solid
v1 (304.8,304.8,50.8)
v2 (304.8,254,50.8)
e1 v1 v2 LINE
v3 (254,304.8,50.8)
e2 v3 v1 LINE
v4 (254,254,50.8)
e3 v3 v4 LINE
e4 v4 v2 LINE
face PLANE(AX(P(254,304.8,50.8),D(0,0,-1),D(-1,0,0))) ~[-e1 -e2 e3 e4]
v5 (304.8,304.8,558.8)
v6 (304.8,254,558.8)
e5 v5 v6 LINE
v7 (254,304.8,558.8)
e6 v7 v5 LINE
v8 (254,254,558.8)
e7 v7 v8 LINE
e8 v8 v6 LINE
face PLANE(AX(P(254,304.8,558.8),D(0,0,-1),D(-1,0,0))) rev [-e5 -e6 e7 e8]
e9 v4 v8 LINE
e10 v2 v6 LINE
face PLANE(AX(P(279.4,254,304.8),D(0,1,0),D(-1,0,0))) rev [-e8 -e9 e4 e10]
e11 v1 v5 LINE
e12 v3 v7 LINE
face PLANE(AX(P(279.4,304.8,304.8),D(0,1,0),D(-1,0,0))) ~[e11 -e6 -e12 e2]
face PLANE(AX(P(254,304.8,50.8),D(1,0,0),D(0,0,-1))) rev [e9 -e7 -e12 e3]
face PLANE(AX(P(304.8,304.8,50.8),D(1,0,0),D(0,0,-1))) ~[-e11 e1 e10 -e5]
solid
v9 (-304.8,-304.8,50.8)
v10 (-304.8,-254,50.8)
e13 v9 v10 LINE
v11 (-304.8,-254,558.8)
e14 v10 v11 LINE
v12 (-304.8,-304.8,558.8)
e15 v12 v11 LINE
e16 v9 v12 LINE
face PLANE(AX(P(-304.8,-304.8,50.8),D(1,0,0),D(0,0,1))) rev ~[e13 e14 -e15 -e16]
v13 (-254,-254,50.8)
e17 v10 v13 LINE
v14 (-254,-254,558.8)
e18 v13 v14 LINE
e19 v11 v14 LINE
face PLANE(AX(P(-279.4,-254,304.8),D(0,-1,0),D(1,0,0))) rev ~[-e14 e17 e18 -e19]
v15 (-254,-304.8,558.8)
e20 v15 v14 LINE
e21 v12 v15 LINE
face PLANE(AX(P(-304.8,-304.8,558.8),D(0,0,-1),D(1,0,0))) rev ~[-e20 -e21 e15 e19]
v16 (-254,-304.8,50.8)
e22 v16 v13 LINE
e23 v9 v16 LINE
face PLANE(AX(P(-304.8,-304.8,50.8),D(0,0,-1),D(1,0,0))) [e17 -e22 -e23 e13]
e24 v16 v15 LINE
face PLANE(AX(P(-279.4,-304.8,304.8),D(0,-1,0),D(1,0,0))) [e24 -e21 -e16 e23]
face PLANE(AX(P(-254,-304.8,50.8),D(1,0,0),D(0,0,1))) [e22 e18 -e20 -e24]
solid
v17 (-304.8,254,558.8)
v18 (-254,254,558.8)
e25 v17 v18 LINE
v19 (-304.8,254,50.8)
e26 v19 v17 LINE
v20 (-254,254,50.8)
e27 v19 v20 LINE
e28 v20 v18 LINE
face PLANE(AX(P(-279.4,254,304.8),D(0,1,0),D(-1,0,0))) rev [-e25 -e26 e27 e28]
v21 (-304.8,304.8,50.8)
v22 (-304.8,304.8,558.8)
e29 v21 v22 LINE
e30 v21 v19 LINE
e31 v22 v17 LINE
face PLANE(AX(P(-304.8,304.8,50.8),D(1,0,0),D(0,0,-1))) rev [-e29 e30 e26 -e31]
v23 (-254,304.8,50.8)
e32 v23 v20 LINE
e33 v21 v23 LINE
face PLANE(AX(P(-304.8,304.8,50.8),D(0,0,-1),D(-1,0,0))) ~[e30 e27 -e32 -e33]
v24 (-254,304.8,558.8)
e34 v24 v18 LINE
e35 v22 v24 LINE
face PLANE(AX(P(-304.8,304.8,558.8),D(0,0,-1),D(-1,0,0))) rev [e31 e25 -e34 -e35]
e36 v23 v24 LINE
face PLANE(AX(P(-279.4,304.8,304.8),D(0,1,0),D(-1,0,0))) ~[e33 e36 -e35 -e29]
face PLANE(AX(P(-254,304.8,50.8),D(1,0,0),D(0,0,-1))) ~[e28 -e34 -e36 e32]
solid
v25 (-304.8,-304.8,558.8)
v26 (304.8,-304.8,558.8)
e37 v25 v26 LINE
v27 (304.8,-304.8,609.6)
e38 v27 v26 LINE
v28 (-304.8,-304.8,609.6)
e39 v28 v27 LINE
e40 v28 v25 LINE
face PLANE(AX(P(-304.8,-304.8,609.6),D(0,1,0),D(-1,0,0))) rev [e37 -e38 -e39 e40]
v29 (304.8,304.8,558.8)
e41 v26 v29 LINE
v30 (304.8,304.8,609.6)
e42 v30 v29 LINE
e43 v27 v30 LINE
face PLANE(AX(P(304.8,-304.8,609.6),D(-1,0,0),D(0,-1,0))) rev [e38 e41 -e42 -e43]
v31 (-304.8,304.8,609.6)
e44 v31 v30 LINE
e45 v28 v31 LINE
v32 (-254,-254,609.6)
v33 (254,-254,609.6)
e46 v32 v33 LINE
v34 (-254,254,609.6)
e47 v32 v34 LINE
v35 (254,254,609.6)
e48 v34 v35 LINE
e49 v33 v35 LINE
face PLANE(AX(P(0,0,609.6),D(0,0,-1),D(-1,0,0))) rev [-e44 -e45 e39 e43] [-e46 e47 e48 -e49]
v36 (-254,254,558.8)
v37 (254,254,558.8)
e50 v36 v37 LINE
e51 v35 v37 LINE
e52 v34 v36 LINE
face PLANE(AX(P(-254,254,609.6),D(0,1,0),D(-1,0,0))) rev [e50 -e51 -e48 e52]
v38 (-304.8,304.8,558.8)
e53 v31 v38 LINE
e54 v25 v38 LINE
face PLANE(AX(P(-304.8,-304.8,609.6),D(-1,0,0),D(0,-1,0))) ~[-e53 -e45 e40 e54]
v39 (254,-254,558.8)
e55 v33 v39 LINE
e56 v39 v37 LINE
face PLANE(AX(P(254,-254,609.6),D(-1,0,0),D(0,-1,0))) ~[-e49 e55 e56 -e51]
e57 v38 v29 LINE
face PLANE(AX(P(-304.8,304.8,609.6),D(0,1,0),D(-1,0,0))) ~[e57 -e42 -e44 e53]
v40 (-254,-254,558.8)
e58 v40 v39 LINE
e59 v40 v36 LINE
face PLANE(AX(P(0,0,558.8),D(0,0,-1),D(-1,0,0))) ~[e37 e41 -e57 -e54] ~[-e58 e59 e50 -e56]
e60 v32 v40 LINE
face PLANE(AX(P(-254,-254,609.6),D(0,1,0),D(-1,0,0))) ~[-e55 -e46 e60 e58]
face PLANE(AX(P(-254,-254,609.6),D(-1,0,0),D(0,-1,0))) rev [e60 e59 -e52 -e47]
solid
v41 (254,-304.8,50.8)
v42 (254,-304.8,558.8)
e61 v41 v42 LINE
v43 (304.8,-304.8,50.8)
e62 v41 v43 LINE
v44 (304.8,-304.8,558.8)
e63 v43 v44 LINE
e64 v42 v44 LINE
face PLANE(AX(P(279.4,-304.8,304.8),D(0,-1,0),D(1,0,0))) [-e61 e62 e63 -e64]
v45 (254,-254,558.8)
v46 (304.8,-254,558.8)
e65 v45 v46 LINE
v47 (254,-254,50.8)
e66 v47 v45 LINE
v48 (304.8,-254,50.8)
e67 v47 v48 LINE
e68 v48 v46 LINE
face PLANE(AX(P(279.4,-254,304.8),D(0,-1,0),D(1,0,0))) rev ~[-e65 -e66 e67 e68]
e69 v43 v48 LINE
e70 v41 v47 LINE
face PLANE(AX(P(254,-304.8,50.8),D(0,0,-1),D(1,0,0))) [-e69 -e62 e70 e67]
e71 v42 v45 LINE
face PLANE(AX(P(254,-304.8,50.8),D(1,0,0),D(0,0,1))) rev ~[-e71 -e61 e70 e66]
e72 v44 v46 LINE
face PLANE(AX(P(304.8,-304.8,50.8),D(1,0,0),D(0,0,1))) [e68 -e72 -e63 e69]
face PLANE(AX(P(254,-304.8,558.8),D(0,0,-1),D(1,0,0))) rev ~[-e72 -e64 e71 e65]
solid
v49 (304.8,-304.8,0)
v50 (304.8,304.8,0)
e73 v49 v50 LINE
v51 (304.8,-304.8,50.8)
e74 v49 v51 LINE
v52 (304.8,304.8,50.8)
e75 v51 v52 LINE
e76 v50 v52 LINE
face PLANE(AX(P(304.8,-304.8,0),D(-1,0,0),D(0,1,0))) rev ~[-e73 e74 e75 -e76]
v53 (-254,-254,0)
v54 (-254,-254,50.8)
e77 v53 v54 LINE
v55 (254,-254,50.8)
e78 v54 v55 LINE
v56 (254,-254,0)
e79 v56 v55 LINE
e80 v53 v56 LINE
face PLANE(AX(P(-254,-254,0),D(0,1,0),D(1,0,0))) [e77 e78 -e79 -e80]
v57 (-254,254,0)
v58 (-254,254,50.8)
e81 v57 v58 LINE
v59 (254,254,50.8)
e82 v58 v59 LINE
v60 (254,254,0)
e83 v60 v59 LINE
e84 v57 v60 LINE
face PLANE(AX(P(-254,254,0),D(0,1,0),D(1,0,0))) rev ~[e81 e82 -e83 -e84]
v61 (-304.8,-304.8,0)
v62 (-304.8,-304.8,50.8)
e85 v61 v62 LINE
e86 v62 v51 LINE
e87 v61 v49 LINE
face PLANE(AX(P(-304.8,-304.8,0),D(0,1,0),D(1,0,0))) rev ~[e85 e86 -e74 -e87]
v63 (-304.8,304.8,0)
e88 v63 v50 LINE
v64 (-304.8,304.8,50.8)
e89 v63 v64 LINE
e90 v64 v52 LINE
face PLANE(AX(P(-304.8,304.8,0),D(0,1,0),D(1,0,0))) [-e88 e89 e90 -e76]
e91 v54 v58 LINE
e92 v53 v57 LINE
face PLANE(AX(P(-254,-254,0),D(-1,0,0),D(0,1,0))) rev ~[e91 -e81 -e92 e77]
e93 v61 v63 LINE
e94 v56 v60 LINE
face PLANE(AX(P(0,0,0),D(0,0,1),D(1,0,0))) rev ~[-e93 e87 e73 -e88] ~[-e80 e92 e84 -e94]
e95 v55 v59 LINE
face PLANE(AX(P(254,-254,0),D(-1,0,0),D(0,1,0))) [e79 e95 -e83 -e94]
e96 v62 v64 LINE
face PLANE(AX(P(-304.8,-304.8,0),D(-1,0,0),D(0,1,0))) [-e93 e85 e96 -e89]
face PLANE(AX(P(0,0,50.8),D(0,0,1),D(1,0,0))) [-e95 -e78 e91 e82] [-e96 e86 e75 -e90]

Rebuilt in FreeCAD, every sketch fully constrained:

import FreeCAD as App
import Part
import Sketcher
Q = App.Units.Quantity

doc = App.newDocument("Part")
params = doc.addObject("Spreadsheet::Sheet", "Params")
for row, (alias, value) in enumerate([
    ("sketch1_width", "24 in"),
    ("sketch1_width2", "20 in"),
    ("pad1_length", "2 in"),
    ("sketch2_width", "2 in"),
    ("sketch2_height", "20 in"),
    ("pad2_length", "2 in"),
    ("sketch3_width", "2 in"),
    ("sketch3_height", "20 in"),
    ("pad3_length", "2 in"),
], start=1):
    params.set(f"A{row}", alias)
    params.set(f"B{row}", "=" + value)
    params.setAlias(f"B{row}", alias)

body = doc.addObject("PartDesign::Body", "Body")

# Sketch on XY plane
sketch1 = body.newObject("Sketcher::SketchObject", "Sketch")
sketch1.AttachmentSupport = (doc.getObject("XY_Plane"), [""])
sketch1.MapMode = "FlatFace"
sketch1.addGeometry([
    Part.LineSegment(App.Vector(-305, 305, 0), App.Vector(-305, -305, 0)),  # 0
    Part.LineSegment(App.Vector(-305, -305, 0), App.Vector(305, -305, 0)),  # 1
    Part.LineSegment(App.Vector(305, -305, 0), App.Vector(305, 305, 0)),  # 2
    Part.LineSegment(App.Vector(305, 305, 0), App.Vector(-305, 305, 0)),  # 3
    Part.LineSegment(App.Vector(254, -254, 0), App.Vector(-254, -254, 0)),  # 4
    Part.LineSegment(App.Vector(-254, -254, 0), App.Vector(-254, 254, 0)),  # 5
    Part.LineSegment(App.Vector(-254, 254, 0), App.Vector(254, 254, 0)),  # 6
    Part.LineSegment(App.Vector(254, 254, 0), App.Vector(254, -254, 0)),  # 7
], False)
sketch1.addConstraint([
    Sketcher.Constraint("Coincident", 0, 2, 1, 1),
    Sketcher.Constraint("Coincident", 1, 2, 2, 1),
    Sketcher.Constraint("Coincident", 2, 2, 3, 1),
    Sketcher.Constraint("Coincident", 3, 2, 0, 1),
    Sketcher.Constraint("Coincident", 4, 2, 5, 1),
    Sketcher.Constraint("Coincident", 5, 2, 6, 1),
    Sketcher.Constraint("Coincident", 6, 2, 7, 1),
    Sketcher.Constraint("Coincident", 7, 2, 4, 1),
    Sketcher.Constraint("Vertical", 0),
    Sketcher.Constraint("Horizontal", 1),
    Sketcher.Constraint("Vertical", 2),
    Sketcher.Constraint("Horizontal", 3),
    Sketcher.Constraint("Horizontal", 4),
    Sketcher.Constraint("Vertical", 5),
    Sketcher.Constraint("Horizontal", 6),
    Sketcher.Constraint("Vertical", 7),
    Sketcher.Constraint("Symmetric", 0, 2, 2, 2, -1, 1),
    Sketcher.Constraint("Symmetric", 4, 2, 6, 2, -1, 1),
    Sketcher.Constraint("Equal", 3, 0),
    Sketcher.Constraint("Equal", 6, 5),
    Sketcher.Constraint("DistanceX", 1, 1, 1, 2, Q("24 in")),
    Sketcher.Constraint("DistanceX", 4, 2, 4, 1, Q("20 in")),
])
sketch1.setExpression("Constraints[20]", "Params.sketch1_width")
sketch1.setExpression("Constraints[21]", "Params.sketch1_width2")
pad1 = body.newObject("PartDesign::Pad", "Pad")
pad1.Profile = sketch1
pad1.setExpression("Length", "Params.pad1_length")
body2 = doc.addObject("PartDesign::Body", "Body001")
doc.recompute()

mirroring = doc.addObject("Part::Mirroring", "Mirroring")
mirroring.Source = body
mirroring.Base = App.Vector(0, 0, 304.8)
mirroring.Normal = App.Vector(0, 0, 1)
body2.BaseFeature = mirroring
doc.recompute()
body3 = doc.addObject("PartDesign::Body", "Body002")

# Sketch on XZ plane
sketch2 = body3.newObject("Sketcher::SketchObject", "Sketch001")
sketch2.AttachmentSupport = (doc.getObject("XZ_Plane002"), [""])
sketch2.MapMode = "FlatFace"
sketch2.AttachmentOffset = App.Placement(App.Vector(0, 0, 12 * 25.4), App.Rotation())
sketch2.addGeometry([
    Part.LineSegment(App.Vector(-305, 559, 0), App.Vector(-305, 51, 0)),
    Part.LineSegment(App.Vector(-305, 51, 0), App.Vector(-254, 51, 0)),
    Part.LineSegment(App.Vector(-254, 51, 0), App.Vector(-254, 559, 0)),
    Part.LineSegment(App.Vector(-254, 559, 0), App.Vector(-305, 559, 0)),
], False)
sketch2.addConstraint([
    Sketcher.Constraint("Coincident", 0, 2, 1, 1),
    Sketcher.Constraint("Coincident", 1, 2, 2, 1),
    Sketcher.Constraint("Coincident", 2, 2, 3, 1),
    Sketcher.Constraint("Coincident", 3, 2, 0, 1),
    Sketcher.Constraint("Vertical", 0),
    Sketcher.Constraint("Horizontal", 1),
    Sketcher.Constraint("Vertical", 2),
    Sketcher.Constraint("Horizontal", 3),
    Sketcher.Constraint("DistanceX", 1, 1, 1, 2, Q("2 in")),
    Sketcher.Constraint("DistanceY", 0, 2, 0, 1, Q("20 in")),
    Sketcher.Constraint("DistanceX", 0, 2, -1, 1, Q("12 in")),
    Sketcher.Constraint("DistanceY", -1, 1, 0, 2, Q("2 in")),
])
sketch2.setExpression("Constraints[8]", "Params.sketch2_width")
sketch2.setExpression("Constraints[9]", "Params.sketch2_height")
pad2 = body3.newObject("PartDesign::Pad", "Pad001")
pad2.Profile = sketch2
pad2.setExpression("Length", "Params.pad2_length")
pad2.Reversed = True
body4 = doc.addObject("PartDesign::Body", "Body003")

# Sketch on XZ plane
sketch3 = body4.newObject("Sketcher::SketchObject", "Sketch002")
sketch3.AttachmentSupport = (doc.getObject("XZ_Plane003"), [""])
sketch3.MapMode = "FlatFace"
sketch3.AttachmentOffset = App.Placement(App.Vector(0, 0, 12 * 25.4), App.Rotation())
sketch3.addGeometry([
    Part.LineSegment(App.Vector(254, 559, 0), App.Vector(254, 51, 0)),
    Part.LineSegment(App.Vector(254, 51, 0), App.Vector(305, 51, 0)),
    Part.LineSegment(App.Vector(305, 51, 0), App.Vector(305, 559, 0)),
    Part.LineSegment(App.Vector(305, 559, 0), App.Vector(254, 559, 0)),
], False)
sketch3.addConstraint([
    Sketcher.Constraint("Coincident", 0, 2, 1, 1),
    Sketcher.Constraint("Coincident", 1, 2, 2, 1),
    Sketcher.Constraint("Coincident", 2, 2, 3, 1),
    Sketcher.Constraint("Coincident", 3, 2, 0, 1),
    Sketcher.Constraint("Vertical", 0),
    Sketcher.Constraint("Horizontal", 1),
    Sketcher.Constraint("Vertical", 2),
    Sketcher.Constraint("Horizontal", 3),
    Sketcher.Constraint("DistanceX", 1, 1, 1, 2, Q("2 in")),
    Sketcher.Constraint("DistanceY", 0, 2, 0, 1, Q("20 in")),
    Sketcher.Constraint("DistanceX", -1, 1, 0, 2, Q("10 in")),
    Sketcher.Constraint("DistanceY", -1, 1, 0, 2, Q("2 in")),
])
sketch3.setExpression("Constraints[8]", "Params.sketch3_width")
sketch3.setExpression("Constraints[9]", "Params.sketch3_height")
pad3 = body4.newObject("PartDesign::Pad", "Pad002")
pad3.Profile = sketch3
pad3.setExpression("Length", "Params.pad3_length")
pad3.Reversed = True
body5 = doc.addObject("PartDesign::Body", "Body004")
doc.recompute()

mirroring2 = doc.addObject("Part::Mirroring", "Mirroring001")
mirroring2.Source = body4
mirroring2.Base = App.Vector(0, 0, 584.2)
mirroring2.Normal = App.Vector(0, 1, 0)
body5.BaseFeature = mirroring2
doc.recompute()
body6 = doc.addObject("PartDesign::Body", "Body005")
doc.recompute()

mirroring3 = doc.addObject("Part::Mirroring", "Mirroring002")
mirroring3.Source = body3
mirroring3.Base = App.Vector(0, 0, 584.2)
mirroring3.Normal = App.Vector(0, 1, 0)
body6.BaseFeature = mirroring3
doc.recompute()
mirroring.Visibility = False
mirroring2.Visibility = False
mirroring3.Visibility = False

doc.recompute()
